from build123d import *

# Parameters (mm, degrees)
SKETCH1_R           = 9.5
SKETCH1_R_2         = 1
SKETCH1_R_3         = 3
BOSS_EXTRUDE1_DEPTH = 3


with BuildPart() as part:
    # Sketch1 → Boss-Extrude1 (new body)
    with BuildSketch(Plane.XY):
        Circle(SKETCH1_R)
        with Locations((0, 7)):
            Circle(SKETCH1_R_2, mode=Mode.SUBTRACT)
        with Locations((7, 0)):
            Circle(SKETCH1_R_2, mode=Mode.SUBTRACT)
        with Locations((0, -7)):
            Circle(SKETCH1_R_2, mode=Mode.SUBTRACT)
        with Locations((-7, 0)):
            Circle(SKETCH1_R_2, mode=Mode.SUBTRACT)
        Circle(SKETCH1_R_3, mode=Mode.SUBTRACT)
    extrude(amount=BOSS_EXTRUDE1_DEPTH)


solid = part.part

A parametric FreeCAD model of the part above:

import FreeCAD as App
import Part
import Sketcher
from FreeCAD import Vector
Q = App.Units.Quantity

doc = App.newDocument("Part")
params = doc.addObject("Spreadsheet::Sheet", "Params")
for row, (alias, value) in enumerate([
    ("sketch1_diameter", "19 mm"),
    ("sketch1_diameter2", "2 mm"),
    ("sketch1_diameter3", "6 mm"),
    ("pad1_length", "3 mm"),
], start=1):
    params.set(f"A{row}", alias)
    params.set(f"B{row}", "=" + value)
    params.setAlias(f"B{row}", alias)

body = doc.addObject("PartDesign::Body", "Body")

# Sketch on XY plane
sketch1 = doc.addObject("Sketcher::SketchObject", "Sketch")
body.addObject(sketch1)
sketch1.AttachmentSupport = (doc.XY_Plane, [""])
sketch1.MapMode = "FlatFace"
sketch1.addGeometry(Part.Circle(Vector(0, 0, 0), Vector(0, 0, 1), 9.5), False)
sketch1.addGeometry(Part.Circle(Vector(0, -7, 0), Vector(0, 0, 1), 1), False)
sketch1.addGeometry(Part.Circle(Vector(-7, 0, 0), Vector(0, 0, 1), 1), False)
sketch1.addGeometry(Part.Circle(Vector(0, 0, 0), Vector(0, 0, 1), 3), False)
sketch1.addGeometry(Part.Circle(Vector(7, 0, 0), Vector(0, 0, 1), 1), False)
sketch1.addGeometry(Part.Circle(Vector(0, 7, 0), Vector(0, 0, 1), 1), False)
sketch1.addConstraint(Sketcher.Constraint("Coincident", 0, 3, -1, 1))
sketch1.addConstraint(Sketcher.Constraint("Coincident", 3, 3, -1, 1))
sketch1.addConstraint(Sketcher.Constraint("Equal", 1, 2))
sketch1.addConstraint(Sketcher.Constraint("Equal", 2, 4))
sketch1.addConstraint(Sketcher.Constraint("Equal", 4, 5))
sketch1.addConstraint(Sketcher.Constraint("Symmetric", 2, 3, 4, 3, -1, 1))
sketch1.addConstraint(Sketcher.Constraint("Symmetric", 1, 3, 5, 3, -1, 1))
sketch1.addConstraint(Sketcher.Constraint("PointOnObject", 1, 3, -2))
sketch1.addConstraint(Sketcher.Constraint("PointOnObject", 2, 3, -1))
sketch1.addConstraint(Sketcher.Constraint("Diameter", 0, Q("19 mm")))
sketch1.addConstraint(Sketcher.Constraint("Diameter", 1, Q("2 mm")))
sketch1.addConstraint(Sketcher.Constraint("Diameter", 3, Q("6 mm")))
sketch1.addConstraint(Sketcher.Constraint("DistanceY", 1, 3, -1, 1, Q("7 mm")))
sketch1.addConstraint(Sketcher.Constraint("DistanceX", 2, 3, -1, 1, Q("7 mm")))
sketch1.setExpression("Constraints[9]", "Params.sketch1_diameter")
sketch1.setExpression("Constraints[10]", "Params.sketch1_diameter2")
sketch1.setExpression("Constraints[11]", "Params.sketch1_diameter3")
pad1 = doc.addObject("PartDesign::Pad", "Pad")
body.addObject(pad1)
pad1.Profile = sketch1
pad1.setExpression("Length", "Params.pad1_length")

doc.recompute()
